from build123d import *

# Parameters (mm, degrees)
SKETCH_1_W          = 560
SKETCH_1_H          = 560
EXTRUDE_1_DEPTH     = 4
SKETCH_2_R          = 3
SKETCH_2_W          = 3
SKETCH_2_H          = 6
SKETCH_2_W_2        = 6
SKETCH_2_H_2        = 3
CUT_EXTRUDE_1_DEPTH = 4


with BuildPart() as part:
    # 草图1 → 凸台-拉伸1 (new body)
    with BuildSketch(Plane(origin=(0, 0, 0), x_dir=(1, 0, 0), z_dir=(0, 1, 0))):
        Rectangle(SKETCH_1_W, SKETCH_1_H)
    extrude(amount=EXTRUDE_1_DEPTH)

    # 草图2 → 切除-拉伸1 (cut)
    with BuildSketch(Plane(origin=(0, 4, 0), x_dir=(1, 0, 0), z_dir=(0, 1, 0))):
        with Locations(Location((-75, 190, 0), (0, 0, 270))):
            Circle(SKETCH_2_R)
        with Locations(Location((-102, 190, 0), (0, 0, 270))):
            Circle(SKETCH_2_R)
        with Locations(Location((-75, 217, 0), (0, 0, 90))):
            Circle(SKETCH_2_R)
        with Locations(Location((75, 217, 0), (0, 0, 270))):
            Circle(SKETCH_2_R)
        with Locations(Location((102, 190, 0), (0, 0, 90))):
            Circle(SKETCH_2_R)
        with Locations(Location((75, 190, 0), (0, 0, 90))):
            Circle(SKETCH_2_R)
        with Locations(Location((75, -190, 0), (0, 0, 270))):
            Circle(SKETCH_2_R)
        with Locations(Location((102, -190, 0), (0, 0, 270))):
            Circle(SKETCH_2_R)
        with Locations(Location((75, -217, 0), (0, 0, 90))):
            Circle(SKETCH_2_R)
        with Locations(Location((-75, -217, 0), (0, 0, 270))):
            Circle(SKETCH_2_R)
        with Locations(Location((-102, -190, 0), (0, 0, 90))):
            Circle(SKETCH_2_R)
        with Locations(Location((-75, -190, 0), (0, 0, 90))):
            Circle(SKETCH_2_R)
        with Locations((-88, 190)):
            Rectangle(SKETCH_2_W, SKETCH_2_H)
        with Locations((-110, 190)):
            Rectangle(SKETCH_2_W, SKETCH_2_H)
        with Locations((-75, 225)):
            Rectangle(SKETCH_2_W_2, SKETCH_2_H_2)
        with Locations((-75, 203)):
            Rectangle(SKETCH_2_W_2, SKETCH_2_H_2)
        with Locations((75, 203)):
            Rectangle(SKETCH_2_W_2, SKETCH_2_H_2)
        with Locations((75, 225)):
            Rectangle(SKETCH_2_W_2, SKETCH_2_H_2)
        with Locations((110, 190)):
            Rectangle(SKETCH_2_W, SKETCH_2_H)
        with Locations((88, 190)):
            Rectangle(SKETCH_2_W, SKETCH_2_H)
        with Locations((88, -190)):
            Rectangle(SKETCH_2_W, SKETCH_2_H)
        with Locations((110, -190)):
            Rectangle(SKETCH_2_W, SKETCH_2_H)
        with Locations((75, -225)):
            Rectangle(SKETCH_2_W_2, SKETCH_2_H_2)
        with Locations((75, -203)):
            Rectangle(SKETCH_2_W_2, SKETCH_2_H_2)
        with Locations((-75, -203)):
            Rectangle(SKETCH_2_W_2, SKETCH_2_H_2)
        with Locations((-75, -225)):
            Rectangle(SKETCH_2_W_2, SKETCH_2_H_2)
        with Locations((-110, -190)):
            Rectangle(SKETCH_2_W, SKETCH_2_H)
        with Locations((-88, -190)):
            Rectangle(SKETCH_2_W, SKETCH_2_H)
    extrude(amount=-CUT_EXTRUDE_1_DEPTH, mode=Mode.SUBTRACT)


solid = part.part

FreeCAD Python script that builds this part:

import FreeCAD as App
import Part
import Sketcher
Q = App.Units.Quantity


def add_polygon(sketch, points):
    """Adds a closed chain of lines whose ends are joined by coincident constraints."""
    first, n = sketch.GeometryCount, len(points)
    for a, b in zip(points, points[1:] + points[:1]):
        sketch.addGeometry(Part.LineSegment(App.Vector(*a, 0), App.Vector(*b, 0)), False)
    for i in range(n):
        sketch.addConstraint(Sketcher.Constraint("Coincident", first + i, 2, first + (i + 1) % n, 1))

doc = App.newDocument("Part")
body = doc.addObject("PartDesign::Body", "Body")

# Sketch on XZ plane
sketch1 = body.newObject("Sketcher::SketchObject", "Sketch")
sketch1.AttachmentSupport = (doc.getObject("XZ_Plane"), [""])
sketch1.MapMode = "FlatFace"
add_polygon(sketch1, [(-280, -280), (-280, 280), (280, 280), (280, -280)])  # lines 0-3
sketch1.addConstraint([
    Sketcher.Constraint("Vertical", 0),
    Sketcher.Constraint("Horizontal", 1),
    Sketcher.Constraint("Vertical", 2),
    Sketcher.Constraint("Horizontal", 3),
    Sketcher.Constraint("Symmetric", 0, 2, 2, 2, -1, 1),
    Sketcher.Constraint("Equal", 3, 0),
    Sketcher.Constraint("DistanceX", 1, 1, 1, 2, Q("560 mm")),
])
pad1 = body.newObject("PartDesign::Pad", "Pad")
pad1.Profile = sketch1
pad1.Length = 4
pad1.Reversed = True

# Sketch on XZ plane
sketch2 = body.newObject("Sketcher::SketchObject", "Sketch001")
sketch2.AttachmentSupport = (doc.getObject("XZ_Plane"), [""])
sketch2.MapMode = "FlatFace"
sketch2.AttachmentOffset = App.Placement(App.Vector(0, 0, -4), App.Rotation())
sketch2.addGeometry(Part.Circle(App.Vector(-75, -190, 0), App.Vector(0, 0, 1), 3), False)  # 0
sketch2.addGeometry(Part.Circle(App.Vector(-102, -190, 0), App.Vector(0, 0, 1), 3), False)  # 1
sketch2.addGeometry(Part.Circle(App.Vector(-75, -217, 0), App.Vector(0, 0, 1), 3), False)  # 2
sketch2.addGeometry(Part.Circle(App.Vector(75, -217, 0), App.Vector(0, 0, 1), 3), False)  # 3
sketch2.addGeometry(Part.Circle(App.Vector(102, -190, 0), App.Vector(0, 0, 1), 3), False)  # 4
sketch2.addGeometry(Part.Circle(App.Vector(75, -190, 0), App.Vector(0, 0, 1), 3), False)  # 5
sketch2.addGeometry(Part.Circle(App.Vector(75, 190, 0), App.Vector(0, 0, 1), 3), False)  # 6
sketch2.addGeometry(Part.Circle(App.Vector(102, 190, 0), App.Vector(0, 0, 1), 3), False)  # 7
sketch2.addGeometry(Part.Circle(App.Vector(75, 217, 0), App.Vector(0, 0, 1), 3), False)  # 8
sketch2.addGeometry(Part.Circle(App.Vector(-75, 217, 0), App.Vector(0, 0, 1), 3), False)  # 9
sketch2.addGeometry(Part.Circle(App.Vector(-102, 190, 0), App.Vector(0, 0, 1), 3), False)  # 10
sketch2.addGeometry(Part.Circle(App.Vector(-75, 190, 0), App.Vector(0, 0, 1), 3), False)  # 11
add_polygon(sketch2, [(-89.5, -193), (-89.5, -187), (-86.5, -187), (-86.5, -193)])  # lines 12-15
add_polygon(sketch2, [(-111.5, -193), (-111.5, -187), (-108.5, -187), (-108.5, -193)])  # lines 16-19
add_polygon(sketch2, [(-78, -226.5), (-78, -223.5), (-72, -223.5), (-72, -226.5)])  # lines 20-23
add_polygon(sketch2, [(-78, -204.5), (-78, -201.5), (-72, -201.5), (-72, -204.5)])  # lines 24-27
add_polygon(sketch2, [(72, -204.5), (72, -201.5), (78, -201.5), (78, -204.5)])  # lines 28-31
add_polygon(sketch2, [(72, -226.5), (72, -223.5), (78, -223.5), (78, -226.5)])  # lines 32-35
add_polygon(sketch2, [(108.5, -193), (108.5, -187), (111.5, -187), (111.5, -193)])  # lines 36-39
add_polygon(sketch2, [(86.5, -193), (86.5, -187), (89.5, -187), (89.5, -193)])  # lines 40-43
add_polygon(sketch2, [(86.5, 187), (86.5, 193), (89.5, 193), (89.5, 187)])  # lines 44-47
add_polygon(sketch2, [(108.5, 187), (108.5, 193), (111.5, 193), (111.5, 187)])  # lines 48-51
add_polygon(sketch2, [(72, 223.5), (72, 226.5), (78, 226.5), (78, 223.5)])  # lines 52-55
add_polygon(sketch2, [(72, 201.5), (72, 204.5), (78, 204.5), (78, 201.5)])  # lines 56-59
add_polygon(sketch2, [(-78, 201.5), (-78, 204.5), (-72, 204.5), (-72, 201.5)])  # lines 60-63
add_polygon(sketch2, [(-78, 223.5), (-78, 226.5), (-72, 226.5), (-72, 223.5)])  # lines 64-67
add_polygon(sketch2, [(-111.5, 187), (-111.5, 193), (-108.5, 193), (-108.5, 187)])  # lines 68-71
add_polygon(sketch2, [(-89.5, 187), (-89.5, 193), (-86.5, 193), (-86.5, 187)])  # lines 72-75
sketch2.addConstraint([
    Sketcher.Constraint("Vertical", 12),
    Sketcher.Constraint("Horizontal", 13),
    Sketcher.Constraint("Vertical", 14),
    Sketcher.Constraint("Horizontal", 15),
    Sketcher.Constraint("Vertical", 16),
    Sketcher.Constraint("Horizontal", 17),
    Sketcher.Constraint("Vertical", 18),
    Sketcher.Constraint("Horizontal", 19),
    Sketcher.Constraint("Vertical", 20),
    Sketcher.Constraint("Horizontal", 21),
    Sketcher.Constraint("Vertical", 22),
    Sketcher.Constraint("Horizontal", 23),
    Sketcher.Constraint("Vertical", 24),
    Sketcher.Constraint("Horizontal", 25),
    Sketcher.Constraint("Vertical", 26),
    Sketcher.Constraint("Horizontal", 27),
    Sketcher.Constraint("Vertical", 28),
    Sketcher.Constraint("Horizontal", 29),
    Sketcher.Constraint("Vertical", 30),
    Sketcher.Constraint("Horizontal", 31),
    Sketcher.Constraint("Vertical", 32),
    Sketcher.Constraint("Horizontal", 33),
    Sketcher.Constraint("Vertical", 34),
    Sketcher.Constraint("Horizontal", 35),
    Sketcher.Constraint("Vertical", 36),
    Sketcher.Constraint("Horizontal", 37),
    Sketcher.Constraint("Vertical", 38),
    Sketcher.Constraint("Horizontal", 39),
    Sketcher.Constraint("Vertical", 40),
    Sketcher.Constraint("Horizontal", 41),
    Sketcher.Constraint("Vertical", 42),
    Sketcher.Constraint("Horizontal", 43),
    Sketcher.Constraint("Vertical", 44),
    Sketcher.Constraint("Horizontal", 45),
    Sketcher.Constraint("Vertical", 46),
    Sketcher.Constraint("Horizontal", 47),
    Sketcher.Constraint("Vertical", 48),
    Sketcher.Constraint("Horizontal", 49),
    Sketcher.Constraint("Vertical", 50),
    Sketcher.Constraint("Horizontal", 51),
    Sketcher.Constraint("Vertical", 52),
    Sketcher.Constraint("Horizontal", 53),
    Sketcher.Constraint("Vertical", 54),
    Sketcher.Constraint("Horizontal", 55),
    Sketcher.Constraint("Vertical", 56),
    Sketcher.Constraint("Horizontal", 57),
    Sketcher.Constraint("Vertical", 58),
    Sketcher.Constraint("Horizontal", 59),
    Sketcher.Constraint("Vertical", 60),
    Sketcher.Constraint("Horizontal", 61),
    Sketcher.Constraint("Vertical", 62),
    Sketcher.Constraint("Horizontal", 63),
    Sketcher.Constraint("Vertical", 64),
    Sketcher.Constraint("Horizontal", 65),
    Sketcher.Constraint("Vertical", 66),
    Sketcher.Constraint("Horizontal", 67),
    Sketcher.Constraint("Vertical", 68),
    Sketcher.Constraint("Horizontal", 69),
    Sketcher.Constraint("Vertical", 70),
    Sketcher.Constraint("Horizontal", 71),
    Sketcher.Constraint("Vertical", 72),
    Sketcher.Constraint("Horizontal", 73),
    Sketcher.Constraint("Vertical", 74),
    Sketcher.Constraint("Horizontal", 75),
    Sketcher.Constraint("Equal", 0, 1),
    Sketcher.Constraint("Equal", 1, 2),
    Sketcher.Constraint("Equal", 2, 3),
    Sketcher.Constraint("Equal", 3, 4),
    Sketcher.Constraint("Equal", 4, 5),
    Sketcher.Constraint("Equal", 5, 6),
    Sketcher.Constraint("Equal", 6, 7),
    Sketcher.Constraint("Equal", 7, 8),
    Sketcher.Constraint("Equal", 8, 9),
    Sketcher.Constraint("Equal", 9, 10),
    Sketcher.Constraint("Equal", 10, 11),
    Sketcher.Constraint("Symmetric", 0, 3, 6, 3, -1, 1),
    Sketcher.Constraint("Symmetric", 1, 3, 7, 3, -1, 1),
    Sketcher.Constraint("Symmetric", 2, 3, 8, 3, -1, 1),
    Sketcher.Constraint("Symmetric", 3, 3, 9, 3, -1, 1),
    Sketcher.Constraint("Symmetric", 4, 3, 10, 3, -1, 1),
    Sketcher.Constraint("Symmetric", 5, 3, 11, 3, -1, 1),
    Sketcher.Constraint("Symmetric", 14, 2, 44, 2, -1, 1),
    Sketcher.Constraint("Symmetric", 12, 2, 46, 2, -1, 1),
    Sketcher.Constraint("Symmetric", 18, 2, 48, 2, -1, 1),
    Sketcher.Constraint("Symmetric", 16, 2, 50, 2, -1, 1),
    Sketcher.Constraint("Symmetric", 22, 2, 52, 2, -1, 1),
    Sketcher.Constraint("Symmetric", 20, 2, 54, 2, -1, 1),
    Sketcher.Constraint("Symmetric", 26, 2, 56, 2, -1, 1),
    Sketcher.Constraint("Symmetric", 24, 2, 58, 2, -1, 1),
    Sketcher.Constraint("Symmetric", 30, 2, 60, 2, -1, 1),
    Sketcher.Constraint("Symmetric", 28, 2, 62, 2, -1, 1),
    Sketcher.Constraint("Symmetric", 34, 2, 64, 2, -1, 1),
    Sketcher.Constraint("Symmetric", 32, 2, 66, 2, -1, 1),
    Sketcher.Constraint("Symmetric", 38, 2, 68, 2, -1, 1),
    Sketcher.Constraint("Symmetric", 36, 2, 70, 2, -1, 1),
    Sketcher.Constraint("Symmetric", 42, 2, 72, 2, -1, 1),
    Sketcher.Constraint("Symmetric", 40, 2, 74, 2, -1, 1),
    Sketcher.Constraint("Symmetric", 2, 3, 3, 3, -2),
    Sketcher.Constraint("Symmetric", 1, 3, 4, 3, -2),
    Sketcher.Constraint("Symmetric", 0, 3, 5, 3, -2),
    Sketcher.Constraint("Symmetric", 25, 2, 28, 2, -2),
    Sketcher.Constraint("Symmetric", 27, 2, 30, 2, -2),
    Sketcher.Constraint("Symmetric", 21, 2, 32, 2, -2),
    Sketcher.Constraint("Symmetric", 23, 2, 34, 2, -2),
    Sketcher.Constraint("Symmetric", 17, 2, 36, 2, -2),
    Sketcher.Constraint("Symmetric", 19, 2, 38, 2, -2),
    Sketcher.Constraint("Symmetric", 13, 2, 40, 2, -2),
    Sketcher.Constraint("Symmetric", 15, 2, 42, 2, -2),
    Sketcher.Constraint("Horizontal", 0, 3, 1, 3),
    Sketcher.Constraint("Horizontal", 13, 2, 16, 2),
    Sketcher.Constraint("Horizontal", 15, 2, 18, 2),
    Sketcher.Constraint("Vertical", 0, 3, 2, 3),
    Sketcher.Constraint("Vertical", 23, 2, 24, 2),
    Sketcher.Constraint("Vertical", 22, 2, 25, 2),
    Sketcher.Constraint("Equal", 15, 17),
    Sketcher.Constraint("Equal", 67, 12),
    Sketcher.Constraint("Equal", 75, 20),
    Sketcher.Constraint("Equal", 22, 24),
    Sketcher.Constraint("Diameter", 0, Q("6 mm")),
    Sketcher.Constraint("DistanceX", 13, 1, 13, 2, Q("3 mm")),
    Sketcher.Constraint("DistanceX", 21, 1, 21, 2, Q("6 mm")),
    Sketcher.Constraint("DistanceX", 0, 3, -1, 1, Q("75 mm")),
    Sketcher.Constraint("DistanceY", 0, 3, -1, 1, Q("190 mm")),
    Sketcher.Constraint("DistanceX", 1, 3, -1, 1, Q("102 mm")),
    Sketcher.Constraint("DistanceY", 2, 3, -1, 1, Q("217 mm")),
    Sketcher.Constraint("DistanceY", 12, 2, -1, 1, Q("187 mm")),
    Sketcher.Constraint("DistanceX", 20, 2, -1, 1, Q("78 mm")),
    Sketcher.Constraint("DistanceX", 12, 2, -1, 1, Q("89.5 mm")),
    Sketcher.Constraint("DistanceX", 16, 2, -1, 1, Q("111.5 mm")),
    Sketcher.Constraint("DistanceY", 20, 2, -1, 1, Q("223.5 mm")),
    Sketcher.Constraint("DistanceY", 24, 2, -1, 1, Q("201.5 mm")),
])
pocket1 = body.newObject("PartDesign::Pocket", "Pocket")
pocket1.Profile = sketch2
pocket1.Length = 4
pocket1.Reversed = True

doc.recompute()
